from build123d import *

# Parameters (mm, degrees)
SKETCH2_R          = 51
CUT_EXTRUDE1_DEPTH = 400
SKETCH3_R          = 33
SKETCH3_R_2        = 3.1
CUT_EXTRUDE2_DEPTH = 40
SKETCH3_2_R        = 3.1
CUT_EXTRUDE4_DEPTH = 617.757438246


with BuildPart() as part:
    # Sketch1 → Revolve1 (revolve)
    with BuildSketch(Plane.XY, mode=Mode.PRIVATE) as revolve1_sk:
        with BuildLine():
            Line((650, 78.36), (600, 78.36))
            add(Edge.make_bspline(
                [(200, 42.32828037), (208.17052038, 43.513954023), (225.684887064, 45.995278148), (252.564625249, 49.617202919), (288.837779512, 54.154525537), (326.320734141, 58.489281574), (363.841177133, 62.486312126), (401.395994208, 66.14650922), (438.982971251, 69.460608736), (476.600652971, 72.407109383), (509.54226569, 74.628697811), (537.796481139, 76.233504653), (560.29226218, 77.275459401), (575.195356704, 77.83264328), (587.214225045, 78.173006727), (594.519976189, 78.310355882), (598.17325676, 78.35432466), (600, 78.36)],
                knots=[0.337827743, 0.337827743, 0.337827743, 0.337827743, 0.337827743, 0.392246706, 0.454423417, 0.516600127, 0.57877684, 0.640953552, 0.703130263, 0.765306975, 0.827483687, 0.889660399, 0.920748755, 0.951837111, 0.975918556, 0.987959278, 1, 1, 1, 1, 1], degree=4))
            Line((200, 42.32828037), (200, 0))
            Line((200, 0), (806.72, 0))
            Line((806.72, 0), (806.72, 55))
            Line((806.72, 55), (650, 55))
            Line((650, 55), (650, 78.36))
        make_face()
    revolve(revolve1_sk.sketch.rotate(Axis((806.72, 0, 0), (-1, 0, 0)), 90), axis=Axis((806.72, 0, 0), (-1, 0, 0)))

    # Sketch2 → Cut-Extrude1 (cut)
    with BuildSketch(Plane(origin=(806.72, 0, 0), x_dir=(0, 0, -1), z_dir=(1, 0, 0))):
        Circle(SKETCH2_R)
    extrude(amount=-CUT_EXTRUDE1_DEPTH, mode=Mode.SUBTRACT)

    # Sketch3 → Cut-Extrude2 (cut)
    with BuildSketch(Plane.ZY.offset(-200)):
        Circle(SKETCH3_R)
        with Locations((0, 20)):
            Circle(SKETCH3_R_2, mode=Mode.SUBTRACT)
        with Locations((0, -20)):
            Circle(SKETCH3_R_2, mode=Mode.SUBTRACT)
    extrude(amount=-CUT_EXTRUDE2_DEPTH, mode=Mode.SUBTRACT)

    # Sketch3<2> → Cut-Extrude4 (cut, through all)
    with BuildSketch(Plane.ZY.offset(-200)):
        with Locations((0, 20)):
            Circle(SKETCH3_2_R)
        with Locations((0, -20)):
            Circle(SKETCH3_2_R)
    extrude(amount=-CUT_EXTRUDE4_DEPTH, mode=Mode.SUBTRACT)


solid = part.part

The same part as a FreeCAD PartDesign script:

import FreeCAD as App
import Part
import Sketcher

doc = App.newDocument("Part")
body = doc.addObject("PartDesign::Body", "Body")

sketch1 = body.newObject("Sketcher::SketchObject", "Sketch")
sketch1.AttachmentSupport = (doc.getObject("XY_Plane"), [""])
sketch1.MapMode = "FlatFace"
sketch1.addGeometry([
    Part.LineSegment(App.Vector(650, 78.36, 0), App.Vector(600, 78.36, 0)),
    Part.BSplineCurve([App.Vector(200, 42.32828, 0), App.Vector(208.17052, 43.513954, 0), App.Vector(225.684887, 45.995278, 0), App.Vector(252.564625, 49.617203, 0), App.Vector(288.83778, 54.154526, 0), App.Vector(326.320734, 58.489282, 0), App.Vector(363.841177, 62.486312, 0), App.Vector(401.395994, 66.146509, 0), App.Vector(438.982971, 69.460609, 0), App.Vector(476.600653, 72.407109, 0), App.Vector(509.542266, 74.628698, 0), App.Vector(537.796481, 76.233505, 0), App.Vector(560.292262, 77.275459, 0), App.Vector(575.195357, 77.832643, 0), App.Vector(587.214225, 78.173007, 0), App.Vector(594.519976, 78.310356, 0), App.Vector(598.173257, 78.354325, 0), App.Vector(600, 78.36, 0)], [5, 1, 1, 1, 1, 1, 1, 1, 1, 1, 1, 1, 1, 1, 5], [0.337827743, 0.392246706, 0.454423417, 0.516600127, 0.57877684, 0.640953552, 0.703130263, 0.765306975, 0.827483687, 0.889660399, 0.920748755, 0.951837111, 0.975918556, 0.987959278, 1], False, 4, [1, 1, 1, 1, 1, 1, 1, 1, 1, 1, 1, 1, 1, 1, 1, 1, 1, 1], False),
    Part.LineSegment(App.Vector(200, 42.32828, 0), App.Vector(200, 0, 0)),
    Part.LineSegment(App.Vector(200, 0, 0), App.Vector(806.72, 0, 0)),
    Part.LineSegment(App.Vector(806.72, 0, 0), App.Vector(806.72, 55, 0)),
    Part.LineSegment(App.Vector(806.72, 55, 0), App.Vector(650, 55, 0)),
    Part.LineSegment(App.Vector(650, 55, 0), App.Vector(650, 78.36, 0)),
], False)
sketch1.addConstraint([
    Sketcher.Constraint("Block", 1),
    Sketcher.Constraint("Coincident", 0, 2, 1, 2),
    Sketcher.Constraint("Coincident", 1, 1, 2, 1),
    Sketcher.Constraint("Coincident", 2, 2, 3, 1),
    Sketcher.Constraint("Coincident", 3, 2, 4, 1),
    Sketcher.Constraint("Coincident", 4, 2, 5, 1),
    Sketcher.Constraint("Coincident", 5, 2, 6, 1),
    Sketcher.Constraint("Coincident", 6, 2, 0, 1),
    Sketcher.Constraint("Horizontal", 0),
    Sketcher.Constraint("Vertical", 2),
    Sketcher.Constraint("Horizontal", 3),
    Sketcher.Constraint("Vertical", 4),
    Sketcher.Constraint("Horizontal", 5),
    Sketcher.Constraint("Vertical", 6),
    Sketcher.Constraint("PointOnObject", 2, 2, -1),
    Sketcher.Constraint("DistanceX", 0, 2, 0, 1, 50.0),
    Sketcher.Constraint("DistanceY", 4, 1, 4, 2, 55.0),
    Sketcher.Constraint("DistanceX", 3, 1, 3, 2, 606.72),
])
revolution = body.newObject("PartDesign::Revolution", "Revolution")
revolution.Profile = sketch1
revolution.ReferenceAxis = (sketch1, ["H_Axis"])
revolution.Angle = 360

sketch2 = body.newObject("Sketcher::SketchObject", "Sketch001")
sketch2.AttachmentSupport = (doc.getObject("YZ_Plane"), [""])
sketch2.MapMode = "FlatFace"
sketch2.AttachmentOffset = App.Placement(App.Vector(0, 0, 806.72), App.Rotation())
sketch2.addGeometry(Part.Circle(App.Vector(0, 0, 0), App.Vector(0, 0, 1), 51), False)
sketch2.addConstraint([
    Sketcher.Constraint("Coincident", 0, 3, -1, 1),
    Sketcher.Constraint("Diameter", 0, 102.0),
])
pocket1 = body.newObject("PartDesign::Pocket", "Pocket")
pocket1.Profile = sketch2
pocket1.Length = 400

sketch3 = body.newObject("Sketcher::SketchObject", "Sketch002")
sketch3.AttachmentSupport = (doc.getObject("YZ_Plane"), [""])
sketch3.MapMode = "FlatFace"
sketch3.AttachmentOffset = App.Placement(App.Vector(0, 0, 200), App.Rotation())
sketch3.addGeometry([
    Part.Circle(App.Vector(0, 0, 0), App.Vector(0, 0, 1), 33),
    Part.Circle(App.Vector(-20, 0, 0), App.Vector(0, 0, 1), 3.1),
    Part.Circle(App.Vector(20, 0, 0), App.Vector(0, 0, 1), 3.1),
], False)
sketch3.addConstraint([
    Sketcher.Constraint("Coincident", 0, 3, -1, 1),
    Sketcher.Constraint("Equal", 1, 2),
    Sketcher.Constraint("Symmetric", 1, 3, 2, 3, -1, 1),
    Sketcher.Constraint("PointOnObject", 1, 3, -1),
    Sketcher.Constraint("Diameter", 0, 66.0),
    Sketcher.Constraint("Diameter", 1, 6.2),
    Sketcher.Constraint("DistanceX", 1, 3, -1, 1, 20.0),
])
pocket2 = body.newObject("PartDesign::Pocket", "Pocket001")
pocket2.Profile = sketch3
pocket2.Length = 40
pocket2.Reversed = True

sketch4 = body.newObject("Sketcher::SketchObject", "Sketch003")
sketch4.AttachmentSupport = (doc.getObject("YZ_Plane"), [""])
sketch4.MapMode = "FlatFace"
sketch4.AttachmentOffset = App.Placement(App.Vector(0, 0, 200), App.Rotation())
sketch4.addGeometry([
    Part.Circle(App.Vector(20, 0, 0), App.Vector(0, 0, 1), 3.1),
    Part.Circle(App.Vector(-20, 0, 0), App.Vector(0, 0, 1), 3.1),
], False)
sketch4.addConstraint([
    Sketcher.Constraint("Equal", 0, 1),
    Sketcher.Constraint("Symmetric", 0, 3, 1, 3, -1, 1),
    Sketcher.Constraint("PointOnObject", 0, 3, -1),
    Sketcher.Constraint("Diameter", 0, 6.2),
    Sketcher.Constraint("DistanceX", -1, 1, 0, 3, 20.0),
])
pocket3 = body.newObject("PartDesign::Pocket", "Pocket002")
pocket3.Profile = sketch4
pocket3.Type = "ThroughAll"
pocket3.Reversed = True

doc.recompute()
